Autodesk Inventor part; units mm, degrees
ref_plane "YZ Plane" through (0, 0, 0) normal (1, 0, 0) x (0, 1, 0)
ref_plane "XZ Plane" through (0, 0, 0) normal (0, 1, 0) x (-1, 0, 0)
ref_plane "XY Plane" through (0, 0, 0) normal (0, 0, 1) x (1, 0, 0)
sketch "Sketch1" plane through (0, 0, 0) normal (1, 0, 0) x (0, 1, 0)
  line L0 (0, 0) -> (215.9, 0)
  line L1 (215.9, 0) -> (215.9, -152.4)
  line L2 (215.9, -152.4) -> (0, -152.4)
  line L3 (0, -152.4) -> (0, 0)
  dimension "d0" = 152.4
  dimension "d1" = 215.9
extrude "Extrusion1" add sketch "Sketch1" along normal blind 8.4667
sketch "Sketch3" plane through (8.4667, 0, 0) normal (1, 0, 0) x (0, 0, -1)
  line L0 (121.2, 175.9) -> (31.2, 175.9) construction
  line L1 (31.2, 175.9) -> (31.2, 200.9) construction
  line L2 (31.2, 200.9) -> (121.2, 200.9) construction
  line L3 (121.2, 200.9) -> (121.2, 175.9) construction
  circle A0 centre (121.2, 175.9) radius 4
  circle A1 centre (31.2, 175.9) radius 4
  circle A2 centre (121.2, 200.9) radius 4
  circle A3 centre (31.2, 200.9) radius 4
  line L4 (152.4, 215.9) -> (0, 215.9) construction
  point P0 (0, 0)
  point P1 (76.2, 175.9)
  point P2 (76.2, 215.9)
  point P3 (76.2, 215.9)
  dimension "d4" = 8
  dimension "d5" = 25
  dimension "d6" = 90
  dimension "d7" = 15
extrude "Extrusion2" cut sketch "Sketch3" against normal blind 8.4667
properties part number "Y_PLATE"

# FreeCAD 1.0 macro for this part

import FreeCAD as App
import Part
import Sketcher
from FreeCAD import Vector
Q = App.Units.Quantity

doc = App.newDocument("Part")
body = doc.addObject("PartDesign::Body", "Body")

# Sketch on YZ plane
sketch1 = body.newObject("Sketcher::SketchObject", "Sketch")
sketch1.AttachmentSupport = (doc.getObject("YZ_Plane"), [""])
sketch1.MapMode = "FlatFace"
sketch1.addGeometry([
    Part.LineSegment(Vector(216, 0, 0), Vector(0, 0, 0)),
    Part.LineSegment(Vector(0, 0, 0), Vector(0, -152, 0)),
    Part.LineSegment(Vector(0, -152, 0), Vector(216, -152, 0)),
    Part.LineSegment(Vector(216, -152, 0), Vector(216, 0, 0)),
], False)
sketch1.addConstraint([
    Sketcher.Constraint("Coincident", 0, 2, 1, 1),
    Sketcher.Constraint("Coincident", 1, 2, 2, 1),
    Sketcher.Constraint("Coincident", 2, 2, 3, 1),
    Sketcher.Constraint("Coincident", 3, 2, 0, 1),
    Sketcher.Constraint("Horizontal", 0),
    Sketcher.Constraint("Vertical", 1),
    Sketcher.Constraint("Horizontal", 2),
    Sketcher.Constraint("Vertical", 3),
    Sketcher.Constraint("Coincident", 0, 2, -1, 1),
    Sketcher.Constraint("DistanceY", 1, 2, 1, 1, Q("6 in")),
    Sketcher.Constraint("DistanceX", 0, 2, 0, 1, Q("8.5 in")),
])
pad1 = body.newObject("PartDesign::Pad", "Pad")
pad1.Profile = sketch1
pad1.Length = 8.4667

# Sketch on YZ plane
sketch2 = body.newObject("Sketcher::SketchObject", "Sketch001")
sketch2.AttachmentSupport = (doc.getObject("YZ_Plane"), [""])
sketch2.MapMode = "FlatFace"
sketch2.AttachmentOffset = App.Placement(Vector(0, 0, 8.4667), App.Rotation())
sketch2.addGeometry([
    Part.Circle(Vector(175.9, -121.2, 0), Vector(0, 0, 1), 4),
    Part.Circle(Vector(175.9, -31.2, 0), Vector(0, 0, 1), 4),
    Part.Circle(Vector(200.9, -121.2, 0), Vector(0, 0, 1), 4),
    Part.Circle(Vector(200.9, -31.2, 0), Vector(0, 0, 1), 4),
], False)
sketch2.addConstraint([
    Sketcher.Constraint("Equal", 0, 1),
    Sketcher.Constraint("Equal", 1, 2),
    Sketcher.Constraint("Equal", 2, 3),
    Sketcher.Constraint("Horizontal", 0, 3, 2, 3),
    Sketcher.Constraint("Horizontal", 1, 3, 3, 3),
    Sketcher.Constraint("Vertical", 0, 3, 1, 3),
    Sketcher.Constraint("Vertical", 2, 3, 3, 3),
    Sketcher.Constraint("Diameter", 0, 8.0),
    Sketcher.Constraint("DistanceY", 0, 3, 1, 3, Q("3.5433 in")),
    Sketcher.Constraint("DistanceX", 0, 3, 2, 3, 25.0),
    Sketcher.Constraint("DistanceX", -1, 1, 0, 3, Q("6.9252 in")),
    Sketcher.Constraint("DistanceY", 0, 3, -1, 1, 121.2),
])
pocket1 = body.newObject("PartDesign::Pocket", "Pocket")
pocket1.Profile = sketch2
pocket1.Length = 8.4667

doc.recompute()
